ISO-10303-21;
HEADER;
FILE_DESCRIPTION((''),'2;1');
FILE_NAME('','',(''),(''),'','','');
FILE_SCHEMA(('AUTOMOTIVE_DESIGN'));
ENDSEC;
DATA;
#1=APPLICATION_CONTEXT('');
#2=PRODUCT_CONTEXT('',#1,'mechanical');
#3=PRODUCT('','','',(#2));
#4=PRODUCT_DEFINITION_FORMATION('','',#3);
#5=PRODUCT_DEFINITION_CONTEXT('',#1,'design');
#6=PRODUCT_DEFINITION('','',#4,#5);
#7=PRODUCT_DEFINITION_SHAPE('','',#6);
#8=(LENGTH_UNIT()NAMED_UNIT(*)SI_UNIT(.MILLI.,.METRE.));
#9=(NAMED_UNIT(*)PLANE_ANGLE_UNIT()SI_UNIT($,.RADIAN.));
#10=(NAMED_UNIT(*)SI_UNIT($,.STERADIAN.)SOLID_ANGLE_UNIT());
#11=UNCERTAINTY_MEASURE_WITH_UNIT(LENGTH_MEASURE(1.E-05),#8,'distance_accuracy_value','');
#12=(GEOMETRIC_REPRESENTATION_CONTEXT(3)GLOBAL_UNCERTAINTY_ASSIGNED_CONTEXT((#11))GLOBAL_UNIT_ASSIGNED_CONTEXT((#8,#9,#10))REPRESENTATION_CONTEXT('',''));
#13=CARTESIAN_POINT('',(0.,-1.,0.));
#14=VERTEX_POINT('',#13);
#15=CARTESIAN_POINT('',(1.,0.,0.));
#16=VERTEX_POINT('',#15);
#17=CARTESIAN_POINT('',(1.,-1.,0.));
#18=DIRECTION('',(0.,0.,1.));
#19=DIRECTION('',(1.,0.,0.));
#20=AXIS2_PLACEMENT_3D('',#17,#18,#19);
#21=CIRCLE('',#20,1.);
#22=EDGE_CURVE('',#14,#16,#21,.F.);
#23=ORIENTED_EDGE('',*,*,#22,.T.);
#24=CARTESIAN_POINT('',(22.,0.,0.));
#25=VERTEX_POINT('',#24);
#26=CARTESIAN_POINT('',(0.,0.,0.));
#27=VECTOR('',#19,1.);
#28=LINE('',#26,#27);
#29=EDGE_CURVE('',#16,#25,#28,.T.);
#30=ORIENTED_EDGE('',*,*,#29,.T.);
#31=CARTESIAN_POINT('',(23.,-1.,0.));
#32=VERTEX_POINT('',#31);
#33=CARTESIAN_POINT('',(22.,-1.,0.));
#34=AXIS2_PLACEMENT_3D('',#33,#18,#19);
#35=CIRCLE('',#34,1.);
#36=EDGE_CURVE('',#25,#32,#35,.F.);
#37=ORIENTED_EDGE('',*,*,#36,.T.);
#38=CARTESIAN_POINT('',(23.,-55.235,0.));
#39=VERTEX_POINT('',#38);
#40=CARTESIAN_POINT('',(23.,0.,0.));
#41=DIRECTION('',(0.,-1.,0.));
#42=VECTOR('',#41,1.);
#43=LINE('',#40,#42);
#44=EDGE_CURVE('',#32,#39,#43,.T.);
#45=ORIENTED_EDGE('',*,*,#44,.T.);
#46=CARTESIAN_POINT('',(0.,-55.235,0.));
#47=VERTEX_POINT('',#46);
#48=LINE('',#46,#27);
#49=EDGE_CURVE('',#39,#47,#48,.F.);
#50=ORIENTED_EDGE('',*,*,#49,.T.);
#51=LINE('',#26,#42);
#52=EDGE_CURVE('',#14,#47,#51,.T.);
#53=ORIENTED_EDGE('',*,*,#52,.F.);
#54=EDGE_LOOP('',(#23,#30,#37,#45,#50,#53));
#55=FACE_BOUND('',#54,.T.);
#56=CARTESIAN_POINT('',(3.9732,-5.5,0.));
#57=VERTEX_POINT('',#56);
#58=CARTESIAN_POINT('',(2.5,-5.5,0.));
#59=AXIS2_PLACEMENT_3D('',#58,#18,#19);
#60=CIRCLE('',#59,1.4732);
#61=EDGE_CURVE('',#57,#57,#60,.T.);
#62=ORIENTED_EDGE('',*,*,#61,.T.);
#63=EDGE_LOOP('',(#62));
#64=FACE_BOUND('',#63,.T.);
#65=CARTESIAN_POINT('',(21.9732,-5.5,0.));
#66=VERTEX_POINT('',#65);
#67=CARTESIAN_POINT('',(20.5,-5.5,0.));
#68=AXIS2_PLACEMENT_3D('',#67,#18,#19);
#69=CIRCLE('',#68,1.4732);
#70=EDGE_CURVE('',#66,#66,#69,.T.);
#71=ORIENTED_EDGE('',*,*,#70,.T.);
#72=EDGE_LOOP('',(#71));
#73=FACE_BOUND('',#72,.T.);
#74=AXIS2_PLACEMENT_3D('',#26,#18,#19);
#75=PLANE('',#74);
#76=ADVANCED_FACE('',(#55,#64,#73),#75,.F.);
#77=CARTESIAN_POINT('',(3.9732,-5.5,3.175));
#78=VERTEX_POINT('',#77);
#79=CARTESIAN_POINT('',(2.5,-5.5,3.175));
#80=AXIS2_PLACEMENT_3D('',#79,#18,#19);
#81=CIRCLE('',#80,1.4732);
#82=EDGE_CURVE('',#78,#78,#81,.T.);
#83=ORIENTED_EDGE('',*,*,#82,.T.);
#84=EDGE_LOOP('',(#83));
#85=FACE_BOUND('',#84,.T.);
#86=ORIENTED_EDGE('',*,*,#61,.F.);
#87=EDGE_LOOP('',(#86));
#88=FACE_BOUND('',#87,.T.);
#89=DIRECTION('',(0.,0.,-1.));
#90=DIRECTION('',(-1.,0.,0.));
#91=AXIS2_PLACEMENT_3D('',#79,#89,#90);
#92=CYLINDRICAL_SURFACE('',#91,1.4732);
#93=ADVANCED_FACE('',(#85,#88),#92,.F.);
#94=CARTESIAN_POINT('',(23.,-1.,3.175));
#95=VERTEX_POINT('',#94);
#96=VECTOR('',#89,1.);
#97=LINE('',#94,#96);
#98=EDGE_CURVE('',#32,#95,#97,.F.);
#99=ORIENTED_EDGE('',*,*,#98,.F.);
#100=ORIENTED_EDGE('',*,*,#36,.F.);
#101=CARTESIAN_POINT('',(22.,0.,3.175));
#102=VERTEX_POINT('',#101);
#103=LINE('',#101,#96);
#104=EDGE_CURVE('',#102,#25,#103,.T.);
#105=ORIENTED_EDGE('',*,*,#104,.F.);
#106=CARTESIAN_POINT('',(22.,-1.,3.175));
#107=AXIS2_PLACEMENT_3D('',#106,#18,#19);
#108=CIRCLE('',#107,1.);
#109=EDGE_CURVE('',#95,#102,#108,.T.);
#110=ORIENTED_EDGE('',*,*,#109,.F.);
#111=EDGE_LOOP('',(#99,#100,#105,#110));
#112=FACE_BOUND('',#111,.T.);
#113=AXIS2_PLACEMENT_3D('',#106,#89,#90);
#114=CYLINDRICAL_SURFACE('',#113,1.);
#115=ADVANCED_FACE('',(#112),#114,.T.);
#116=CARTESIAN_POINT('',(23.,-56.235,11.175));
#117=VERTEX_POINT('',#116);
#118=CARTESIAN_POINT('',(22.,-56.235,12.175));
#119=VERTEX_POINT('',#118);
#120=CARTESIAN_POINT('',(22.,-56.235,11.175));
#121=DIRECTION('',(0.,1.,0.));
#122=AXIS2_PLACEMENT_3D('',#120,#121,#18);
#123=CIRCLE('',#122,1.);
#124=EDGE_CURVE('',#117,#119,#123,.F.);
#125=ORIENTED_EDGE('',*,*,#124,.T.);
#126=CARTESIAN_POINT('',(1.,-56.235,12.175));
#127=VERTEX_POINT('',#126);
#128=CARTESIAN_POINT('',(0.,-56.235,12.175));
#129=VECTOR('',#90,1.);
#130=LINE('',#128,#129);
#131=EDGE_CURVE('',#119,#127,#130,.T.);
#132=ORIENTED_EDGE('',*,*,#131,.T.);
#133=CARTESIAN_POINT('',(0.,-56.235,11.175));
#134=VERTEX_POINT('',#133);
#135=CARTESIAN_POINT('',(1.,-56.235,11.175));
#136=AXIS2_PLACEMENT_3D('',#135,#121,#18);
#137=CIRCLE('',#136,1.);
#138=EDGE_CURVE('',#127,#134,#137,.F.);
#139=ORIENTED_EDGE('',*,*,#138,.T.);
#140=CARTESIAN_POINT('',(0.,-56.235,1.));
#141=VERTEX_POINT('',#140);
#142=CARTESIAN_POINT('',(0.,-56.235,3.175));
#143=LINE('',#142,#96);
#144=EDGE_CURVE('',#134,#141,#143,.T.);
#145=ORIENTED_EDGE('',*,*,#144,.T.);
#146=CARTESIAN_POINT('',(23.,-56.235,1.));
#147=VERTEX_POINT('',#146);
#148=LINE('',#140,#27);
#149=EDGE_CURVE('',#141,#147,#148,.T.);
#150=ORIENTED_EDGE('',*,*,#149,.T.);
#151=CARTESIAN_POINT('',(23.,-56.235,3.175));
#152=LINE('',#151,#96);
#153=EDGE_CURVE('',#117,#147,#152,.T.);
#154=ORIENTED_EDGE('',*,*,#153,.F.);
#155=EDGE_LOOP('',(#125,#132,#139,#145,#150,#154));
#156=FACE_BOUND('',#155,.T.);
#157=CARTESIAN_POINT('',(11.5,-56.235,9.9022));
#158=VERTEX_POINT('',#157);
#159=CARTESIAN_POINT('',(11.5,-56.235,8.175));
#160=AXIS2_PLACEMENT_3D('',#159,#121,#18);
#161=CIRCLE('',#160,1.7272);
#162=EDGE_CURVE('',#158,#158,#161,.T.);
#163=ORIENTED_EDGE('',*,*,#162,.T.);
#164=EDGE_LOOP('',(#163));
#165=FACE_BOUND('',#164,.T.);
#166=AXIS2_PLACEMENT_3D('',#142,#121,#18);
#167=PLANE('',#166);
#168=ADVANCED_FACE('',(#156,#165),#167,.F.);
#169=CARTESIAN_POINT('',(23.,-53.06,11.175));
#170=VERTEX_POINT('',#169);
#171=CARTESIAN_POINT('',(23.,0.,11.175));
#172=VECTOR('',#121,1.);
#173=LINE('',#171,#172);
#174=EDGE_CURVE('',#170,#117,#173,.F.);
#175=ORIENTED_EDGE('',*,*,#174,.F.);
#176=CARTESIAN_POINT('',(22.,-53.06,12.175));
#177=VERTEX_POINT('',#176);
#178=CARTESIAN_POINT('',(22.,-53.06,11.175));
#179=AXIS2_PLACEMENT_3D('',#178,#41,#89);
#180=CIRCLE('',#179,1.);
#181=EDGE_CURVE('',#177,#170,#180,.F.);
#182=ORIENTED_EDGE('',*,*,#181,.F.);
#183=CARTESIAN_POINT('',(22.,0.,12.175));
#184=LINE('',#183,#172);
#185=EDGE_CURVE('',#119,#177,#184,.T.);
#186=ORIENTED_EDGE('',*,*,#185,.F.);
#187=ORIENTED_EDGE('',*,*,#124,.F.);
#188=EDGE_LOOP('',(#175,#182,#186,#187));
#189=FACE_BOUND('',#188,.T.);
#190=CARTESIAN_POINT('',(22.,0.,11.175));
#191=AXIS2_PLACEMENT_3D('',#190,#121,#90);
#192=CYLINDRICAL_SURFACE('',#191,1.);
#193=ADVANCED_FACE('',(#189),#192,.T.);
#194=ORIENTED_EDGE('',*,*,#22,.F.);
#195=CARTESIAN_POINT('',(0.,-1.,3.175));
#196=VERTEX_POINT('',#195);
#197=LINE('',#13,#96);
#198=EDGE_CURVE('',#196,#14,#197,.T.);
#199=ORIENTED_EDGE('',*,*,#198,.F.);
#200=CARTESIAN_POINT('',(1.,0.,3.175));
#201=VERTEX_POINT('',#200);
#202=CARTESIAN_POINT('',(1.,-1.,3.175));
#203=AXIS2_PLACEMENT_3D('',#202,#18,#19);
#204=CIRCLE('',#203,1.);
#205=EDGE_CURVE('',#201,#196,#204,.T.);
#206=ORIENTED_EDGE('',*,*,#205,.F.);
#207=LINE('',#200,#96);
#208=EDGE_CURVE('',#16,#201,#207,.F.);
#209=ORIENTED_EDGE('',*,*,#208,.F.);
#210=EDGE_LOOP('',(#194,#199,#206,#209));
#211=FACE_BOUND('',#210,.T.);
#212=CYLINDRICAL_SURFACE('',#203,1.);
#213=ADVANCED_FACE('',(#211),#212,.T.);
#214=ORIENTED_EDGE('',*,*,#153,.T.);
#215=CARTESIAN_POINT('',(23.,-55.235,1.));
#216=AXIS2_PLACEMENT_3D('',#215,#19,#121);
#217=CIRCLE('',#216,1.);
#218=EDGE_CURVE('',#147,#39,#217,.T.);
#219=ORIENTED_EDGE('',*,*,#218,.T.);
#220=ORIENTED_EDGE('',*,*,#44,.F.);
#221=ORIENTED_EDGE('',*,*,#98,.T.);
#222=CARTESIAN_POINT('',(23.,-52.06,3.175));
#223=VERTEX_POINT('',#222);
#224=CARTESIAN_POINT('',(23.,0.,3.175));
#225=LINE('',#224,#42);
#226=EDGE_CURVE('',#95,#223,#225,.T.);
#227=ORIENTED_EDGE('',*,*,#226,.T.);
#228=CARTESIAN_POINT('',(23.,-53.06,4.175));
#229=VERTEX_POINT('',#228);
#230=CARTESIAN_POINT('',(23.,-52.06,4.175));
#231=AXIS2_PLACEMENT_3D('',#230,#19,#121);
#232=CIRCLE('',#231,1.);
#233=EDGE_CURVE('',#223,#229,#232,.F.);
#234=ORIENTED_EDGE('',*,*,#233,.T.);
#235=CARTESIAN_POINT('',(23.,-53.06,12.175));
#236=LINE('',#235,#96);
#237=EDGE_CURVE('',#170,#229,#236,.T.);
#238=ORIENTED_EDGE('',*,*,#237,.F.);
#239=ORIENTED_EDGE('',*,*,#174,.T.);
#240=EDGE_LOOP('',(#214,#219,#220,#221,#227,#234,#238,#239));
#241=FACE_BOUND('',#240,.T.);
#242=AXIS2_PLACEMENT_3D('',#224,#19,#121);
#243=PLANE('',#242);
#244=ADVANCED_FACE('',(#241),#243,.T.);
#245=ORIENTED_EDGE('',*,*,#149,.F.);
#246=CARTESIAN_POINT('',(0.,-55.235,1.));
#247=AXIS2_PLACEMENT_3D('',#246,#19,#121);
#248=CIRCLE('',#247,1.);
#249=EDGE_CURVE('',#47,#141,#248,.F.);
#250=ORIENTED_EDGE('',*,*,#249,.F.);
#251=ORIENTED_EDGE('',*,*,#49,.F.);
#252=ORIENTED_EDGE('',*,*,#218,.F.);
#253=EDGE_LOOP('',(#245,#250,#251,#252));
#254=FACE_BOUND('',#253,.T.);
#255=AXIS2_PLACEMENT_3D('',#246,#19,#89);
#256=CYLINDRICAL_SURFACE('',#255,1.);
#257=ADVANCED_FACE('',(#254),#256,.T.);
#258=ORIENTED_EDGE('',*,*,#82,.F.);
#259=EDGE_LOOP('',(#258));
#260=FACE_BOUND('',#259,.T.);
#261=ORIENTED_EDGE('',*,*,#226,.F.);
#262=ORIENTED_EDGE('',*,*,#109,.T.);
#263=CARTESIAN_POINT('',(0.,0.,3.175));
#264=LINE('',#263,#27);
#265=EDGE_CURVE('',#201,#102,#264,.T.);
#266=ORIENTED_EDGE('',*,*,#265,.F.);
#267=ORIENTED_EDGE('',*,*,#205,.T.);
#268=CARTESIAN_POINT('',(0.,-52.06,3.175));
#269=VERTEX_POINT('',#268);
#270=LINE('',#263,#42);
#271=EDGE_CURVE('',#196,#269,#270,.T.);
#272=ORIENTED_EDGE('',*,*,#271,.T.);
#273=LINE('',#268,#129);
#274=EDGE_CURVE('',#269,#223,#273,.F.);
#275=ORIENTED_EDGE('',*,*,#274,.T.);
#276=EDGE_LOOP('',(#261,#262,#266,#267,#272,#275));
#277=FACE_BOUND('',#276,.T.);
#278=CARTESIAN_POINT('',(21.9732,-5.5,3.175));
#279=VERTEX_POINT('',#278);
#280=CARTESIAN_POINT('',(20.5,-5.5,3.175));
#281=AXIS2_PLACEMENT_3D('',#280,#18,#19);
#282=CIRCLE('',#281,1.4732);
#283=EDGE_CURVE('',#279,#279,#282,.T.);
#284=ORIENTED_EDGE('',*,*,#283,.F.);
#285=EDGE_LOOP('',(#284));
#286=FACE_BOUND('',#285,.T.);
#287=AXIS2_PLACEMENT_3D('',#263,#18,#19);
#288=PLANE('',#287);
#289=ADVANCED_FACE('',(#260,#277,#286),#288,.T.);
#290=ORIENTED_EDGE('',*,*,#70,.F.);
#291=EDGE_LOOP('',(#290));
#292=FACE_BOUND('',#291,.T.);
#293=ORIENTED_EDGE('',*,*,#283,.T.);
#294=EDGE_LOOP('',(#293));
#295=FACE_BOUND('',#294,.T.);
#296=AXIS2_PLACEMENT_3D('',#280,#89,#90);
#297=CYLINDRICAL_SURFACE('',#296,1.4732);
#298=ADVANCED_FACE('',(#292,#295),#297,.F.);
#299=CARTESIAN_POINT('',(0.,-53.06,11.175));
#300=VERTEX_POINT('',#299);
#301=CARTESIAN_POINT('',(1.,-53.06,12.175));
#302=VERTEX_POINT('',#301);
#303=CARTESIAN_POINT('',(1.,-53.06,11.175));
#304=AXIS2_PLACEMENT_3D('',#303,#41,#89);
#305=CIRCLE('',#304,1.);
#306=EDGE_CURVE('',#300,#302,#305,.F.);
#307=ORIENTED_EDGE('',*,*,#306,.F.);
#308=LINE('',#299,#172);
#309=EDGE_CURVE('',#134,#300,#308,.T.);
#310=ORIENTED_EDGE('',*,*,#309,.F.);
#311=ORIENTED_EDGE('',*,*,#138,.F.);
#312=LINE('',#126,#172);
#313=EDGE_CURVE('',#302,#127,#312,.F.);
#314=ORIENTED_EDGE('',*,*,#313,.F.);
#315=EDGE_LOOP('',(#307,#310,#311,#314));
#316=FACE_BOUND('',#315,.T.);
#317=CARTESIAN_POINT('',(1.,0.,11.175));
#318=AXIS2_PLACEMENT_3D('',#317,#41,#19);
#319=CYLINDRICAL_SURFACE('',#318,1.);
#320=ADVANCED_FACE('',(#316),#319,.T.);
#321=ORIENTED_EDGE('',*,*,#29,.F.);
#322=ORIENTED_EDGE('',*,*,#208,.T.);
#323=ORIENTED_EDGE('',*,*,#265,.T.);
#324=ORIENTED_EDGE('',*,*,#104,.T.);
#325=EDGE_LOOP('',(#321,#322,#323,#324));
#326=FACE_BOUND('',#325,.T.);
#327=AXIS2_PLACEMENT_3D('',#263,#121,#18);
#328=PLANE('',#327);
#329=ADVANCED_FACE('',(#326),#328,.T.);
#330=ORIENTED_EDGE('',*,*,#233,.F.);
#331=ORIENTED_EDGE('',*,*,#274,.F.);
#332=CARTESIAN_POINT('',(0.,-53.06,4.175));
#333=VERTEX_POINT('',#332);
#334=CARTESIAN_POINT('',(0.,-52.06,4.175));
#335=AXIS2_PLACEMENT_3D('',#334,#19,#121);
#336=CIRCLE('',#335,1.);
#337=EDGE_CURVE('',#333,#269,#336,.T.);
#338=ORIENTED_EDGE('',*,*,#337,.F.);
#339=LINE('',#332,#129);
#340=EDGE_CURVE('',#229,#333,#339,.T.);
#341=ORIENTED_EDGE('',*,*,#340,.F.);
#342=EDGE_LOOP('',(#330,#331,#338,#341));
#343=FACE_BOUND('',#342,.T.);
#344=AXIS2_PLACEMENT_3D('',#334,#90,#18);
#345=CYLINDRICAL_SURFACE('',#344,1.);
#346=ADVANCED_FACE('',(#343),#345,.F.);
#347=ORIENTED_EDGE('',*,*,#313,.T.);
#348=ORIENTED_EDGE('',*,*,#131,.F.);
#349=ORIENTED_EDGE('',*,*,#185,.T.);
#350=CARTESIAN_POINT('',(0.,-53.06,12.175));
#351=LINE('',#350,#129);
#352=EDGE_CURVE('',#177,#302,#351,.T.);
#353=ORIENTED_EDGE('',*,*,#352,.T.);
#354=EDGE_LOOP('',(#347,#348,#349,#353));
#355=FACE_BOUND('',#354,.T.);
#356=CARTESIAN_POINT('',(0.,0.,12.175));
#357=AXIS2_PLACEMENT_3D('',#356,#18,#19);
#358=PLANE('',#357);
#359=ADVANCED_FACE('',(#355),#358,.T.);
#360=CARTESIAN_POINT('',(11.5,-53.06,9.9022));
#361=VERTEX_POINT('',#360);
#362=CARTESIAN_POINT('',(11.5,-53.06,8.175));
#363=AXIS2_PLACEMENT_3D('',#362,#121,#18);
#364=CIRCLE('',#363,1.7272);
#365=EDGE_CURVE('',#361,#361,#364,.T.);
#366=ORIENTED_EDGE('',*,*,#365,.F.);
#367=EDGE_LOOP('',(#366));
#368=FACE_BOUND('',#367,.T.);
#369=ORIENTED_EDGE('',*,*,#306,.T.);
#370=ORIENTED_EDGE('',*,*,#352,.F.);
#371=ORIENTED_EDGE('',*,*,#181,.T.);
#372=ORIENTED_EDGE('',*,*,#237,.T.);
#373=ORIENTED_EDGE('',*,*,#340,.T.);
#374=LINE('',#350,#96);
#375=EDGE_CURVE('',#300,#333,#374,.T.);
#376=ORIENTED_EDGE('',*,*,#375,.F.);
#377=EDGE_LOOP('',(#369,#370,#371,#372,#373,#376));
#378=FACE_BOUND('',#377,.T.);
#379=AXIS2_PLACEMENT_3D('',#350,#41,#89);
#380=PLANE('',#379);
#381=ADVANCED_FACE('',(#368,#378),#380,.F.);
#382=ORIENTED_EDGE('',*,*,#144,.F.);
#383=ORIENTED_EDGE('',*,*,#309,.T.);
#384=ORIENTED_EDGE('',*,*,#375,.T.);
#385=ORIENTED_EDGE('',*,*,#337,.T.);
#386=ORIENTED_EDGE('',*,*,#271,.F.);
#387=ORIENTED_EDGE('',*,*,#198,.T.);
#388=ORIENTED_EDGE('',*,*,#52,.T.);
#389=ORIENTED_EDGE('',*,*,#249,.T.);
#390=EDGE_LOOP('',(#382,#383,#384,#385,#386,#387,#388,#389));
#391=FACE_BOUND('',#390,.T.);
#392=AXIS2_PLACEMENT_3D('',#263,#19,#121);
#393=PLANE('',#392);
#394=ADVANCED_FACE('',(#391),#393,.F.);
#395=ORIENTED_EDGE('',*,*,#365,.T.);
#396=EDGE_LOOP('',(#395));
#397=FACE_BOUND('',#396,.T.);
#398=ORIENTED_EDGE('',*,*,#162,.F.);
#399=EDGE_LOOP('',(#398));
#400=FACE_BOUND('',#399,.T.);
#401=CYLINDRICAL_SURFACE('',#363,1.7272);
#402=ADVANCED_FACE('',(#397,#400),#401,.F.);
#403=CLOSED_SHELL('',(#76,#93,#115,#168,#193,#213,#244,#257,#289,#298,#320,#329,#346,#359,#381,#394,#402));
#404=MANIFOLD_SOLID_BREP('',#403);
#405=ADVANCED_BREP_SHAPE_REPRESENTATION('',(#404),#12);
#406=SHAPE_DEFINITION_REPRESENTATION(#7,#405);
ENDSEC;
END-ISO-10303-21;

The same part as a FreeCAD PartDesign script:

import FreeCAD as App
import Part
import Sketcher

V = App.Vector


def edges_at(feature, points):
    """Names of the edges that pass closest to the given points."""
    edges = feature.Shape.Edges
    near = lambda p: min(range(len(edges)), key=lambda i: edges[i].distToShape(Part.Vertex(*p))[0])
    return sorted({f"Edge{near(p) + 1}" for p in points})

doc = App.newDocument("Part")
body = doc.addObject("PartDesign::Body", "Body")

sketch1 = doc.addObject("Sketcher::SketchObject", "Sketch")
body.addObject(sketch1)
sketch1.AttachmentSupport = (doc.XY_Plane, [""])
sketch1.MapMode = "FlatFace"
sketch1.addGeometry([
    Part.LineSegment(V(0, 0, 0), V(0, -56.2, 0)),
    Part.LineSegment(V(0, -56.2, 0), V(23, -56.2, 0)),
    Part.LineSegment(V(23, -56.2, 0), V(23, 0, 0)),
    Part.LineSegment(V(23, 0, 0), V(0, 0, 0)),
    Part.Circle(V(2.5, -5.5, 0), V(0, 0, 1), 1.5),
    Part.Circle(V(20.5, -5.5, 0), V(0, 0, 1), 1.5),
], False)
sketch1.addConstraint([
    Sketcher.Constraint("Coincident", 0, 2, 1, 1),
    Sketcher.Constraint("Coincident", 1, 2, 2, 1),
    Sketcher.Constraint("Coincident", 2, 2, 3, 1),
    Sketcher.Constraint("Coincident", 3, 2, 0, 1),
    Sketcher.Constraint("Vertical", 0),
    Sketcher.Constraint("Horizontal", 1),
    Sketcher.Constraint("Vertical", 2),
    Sketcher.Constraint("Horizontal", 3),
    Sketcher.Constraint("Coincident", 3, 2, -1, 1),
    Sketcher.Constraint("Equal", 4, 5),
    Sketcher.Constraint("Horizontal", 4, 3, 5, 3),
    Sketcher.Constraint("DistanceX", 1, 1, 1, 2, 23.0),
    Sketcher.Constraint("DistanceX", 4, 3, 5, 3, 18.0),
    Sketcher.Constraint("Diameter", 4, 2.9464),
    Sketcher.Constraint("DistanceX", -1, 1, 4, 3, 2.5),
    Sketcher.Constraint("DistanceY", 4, 3, -1, 1, 5.5),
    Sketcher.Constraint("DistanceY", 0, 2, 0, 1, 56.235),
])
pad1 = doc.addObject("PartDesign::Pad", "Pad")
body.addObject(pad1)
pad1.Profile = sketch1
pad1.Length = 3.175

sketch2 = doc.addObject("Sketcher::SketchObject", "Sketch001")
body.addObject(sketch2)
sketch2.AttachmentSupport = (doc.XY_Plane, [""])
sketch2.MapMode = "FlatFace"
sketch2.AttachmentOffset = App.Placement(V(0, 0, 3.175), App.Rotation())
sketch2.addGeometry([
    Part.LineSegment(V(0, -53.1, 0), V(0, -56.2, 0)),
    Part.LineSegment(V(0, -56.2, 0), V(23, -56.2, 0)),
    Part.LineSegment(V(23, -56.2, 0), V(23, -53.1, 0)),
    Part.LineSegment(V(23, -53.1, 0), V(0, -53.1, 0)),
], False)
sketch2.addConstraint([
    Sketcher.Constraint("Coincident", 0, 2, 1, 1),
    Sketcher.Constraint("Coincident", 1, 2, 2, 1),
    Sketcher.Constraint("Coincident", 2, 2, 3, 1),
    Sketcher.Constraint("Coincident", 3, 2, 0, 1),
    Sketcher.Constraint("Vertical", 0),
    Sketcher.Constraint("Horizontal", 1),
    Sketcher.Constraint("Vertical", 2),
    Sketcher.Constraint("Horizontal", 3),
    Sketcher.Constraint("PointOnObject", 0, 2, -2),
    Sketcher.Constraint("DistanceX", 1, 1, 1, 2, 23.0),
    Sketcher.Constraint("DistanceY", 0, 2, 0, 1, 3.175),
    Sketcher.Constraint("DistanceY", 2, 2, -1, 1, 53.06),
])
pad2 = doc.addObject("PartDesign::Pad", "Pad001")
body.addObject(pad2)
pad2.Profile = sketch2
pad2.Length = 9

sketch3 = doc.addObject("Sketcher::SketchObject", "Sketch002")
body.addObject(sketch3)
sketch3.AttachmentSupport = (doc.XZ_Plane, [""])
sketch3.MapMode = "FlatFace"
sketch3.AttachmentOffset = App.Placement(V(0, 0, 53.06), App.Rotation())
sketch3.addGeometry(Part.Circle(V(11.5, 8.2, 0), V(0, 0, 1), 1.7), False)
sketch3.addConstraint([
    Sketcher.Constraint("Diameter", 0, 3.4544),
    Sketcher.Constraint("DistanceX", -1, 1, 0, 3, 11.5),
    Sketcher.Constraint("DistanceY", -1, 1, 0, 3, 8.175),
])
doc.recompute()
hole = doc.addObject("PartDesign::Hole", "Hole")
body.addObject(hole)
hole.Profile = sketch3
hole.ThreadType = "None"
hole.Diameter = 3.4544
hole.DepthType = "ThroughAll"
hole.Reversed = True
doc.recompute()

fillet = doc.addObject("PartDesign::Fillet", "Fillet")
body.addObject(fillet)
fillet.Base = (hole, edges_at(hole, [
    (0, 0, 1.587),
    (23, 0, 1.587),
    (0, -54.648, 12.175),
    (11.5, -53.06, 3.175),
    (23, -54.648, 12.175),
    (11.5, -56.235, 0),
]))
fillet.Radius = 1

doc.recompute()
